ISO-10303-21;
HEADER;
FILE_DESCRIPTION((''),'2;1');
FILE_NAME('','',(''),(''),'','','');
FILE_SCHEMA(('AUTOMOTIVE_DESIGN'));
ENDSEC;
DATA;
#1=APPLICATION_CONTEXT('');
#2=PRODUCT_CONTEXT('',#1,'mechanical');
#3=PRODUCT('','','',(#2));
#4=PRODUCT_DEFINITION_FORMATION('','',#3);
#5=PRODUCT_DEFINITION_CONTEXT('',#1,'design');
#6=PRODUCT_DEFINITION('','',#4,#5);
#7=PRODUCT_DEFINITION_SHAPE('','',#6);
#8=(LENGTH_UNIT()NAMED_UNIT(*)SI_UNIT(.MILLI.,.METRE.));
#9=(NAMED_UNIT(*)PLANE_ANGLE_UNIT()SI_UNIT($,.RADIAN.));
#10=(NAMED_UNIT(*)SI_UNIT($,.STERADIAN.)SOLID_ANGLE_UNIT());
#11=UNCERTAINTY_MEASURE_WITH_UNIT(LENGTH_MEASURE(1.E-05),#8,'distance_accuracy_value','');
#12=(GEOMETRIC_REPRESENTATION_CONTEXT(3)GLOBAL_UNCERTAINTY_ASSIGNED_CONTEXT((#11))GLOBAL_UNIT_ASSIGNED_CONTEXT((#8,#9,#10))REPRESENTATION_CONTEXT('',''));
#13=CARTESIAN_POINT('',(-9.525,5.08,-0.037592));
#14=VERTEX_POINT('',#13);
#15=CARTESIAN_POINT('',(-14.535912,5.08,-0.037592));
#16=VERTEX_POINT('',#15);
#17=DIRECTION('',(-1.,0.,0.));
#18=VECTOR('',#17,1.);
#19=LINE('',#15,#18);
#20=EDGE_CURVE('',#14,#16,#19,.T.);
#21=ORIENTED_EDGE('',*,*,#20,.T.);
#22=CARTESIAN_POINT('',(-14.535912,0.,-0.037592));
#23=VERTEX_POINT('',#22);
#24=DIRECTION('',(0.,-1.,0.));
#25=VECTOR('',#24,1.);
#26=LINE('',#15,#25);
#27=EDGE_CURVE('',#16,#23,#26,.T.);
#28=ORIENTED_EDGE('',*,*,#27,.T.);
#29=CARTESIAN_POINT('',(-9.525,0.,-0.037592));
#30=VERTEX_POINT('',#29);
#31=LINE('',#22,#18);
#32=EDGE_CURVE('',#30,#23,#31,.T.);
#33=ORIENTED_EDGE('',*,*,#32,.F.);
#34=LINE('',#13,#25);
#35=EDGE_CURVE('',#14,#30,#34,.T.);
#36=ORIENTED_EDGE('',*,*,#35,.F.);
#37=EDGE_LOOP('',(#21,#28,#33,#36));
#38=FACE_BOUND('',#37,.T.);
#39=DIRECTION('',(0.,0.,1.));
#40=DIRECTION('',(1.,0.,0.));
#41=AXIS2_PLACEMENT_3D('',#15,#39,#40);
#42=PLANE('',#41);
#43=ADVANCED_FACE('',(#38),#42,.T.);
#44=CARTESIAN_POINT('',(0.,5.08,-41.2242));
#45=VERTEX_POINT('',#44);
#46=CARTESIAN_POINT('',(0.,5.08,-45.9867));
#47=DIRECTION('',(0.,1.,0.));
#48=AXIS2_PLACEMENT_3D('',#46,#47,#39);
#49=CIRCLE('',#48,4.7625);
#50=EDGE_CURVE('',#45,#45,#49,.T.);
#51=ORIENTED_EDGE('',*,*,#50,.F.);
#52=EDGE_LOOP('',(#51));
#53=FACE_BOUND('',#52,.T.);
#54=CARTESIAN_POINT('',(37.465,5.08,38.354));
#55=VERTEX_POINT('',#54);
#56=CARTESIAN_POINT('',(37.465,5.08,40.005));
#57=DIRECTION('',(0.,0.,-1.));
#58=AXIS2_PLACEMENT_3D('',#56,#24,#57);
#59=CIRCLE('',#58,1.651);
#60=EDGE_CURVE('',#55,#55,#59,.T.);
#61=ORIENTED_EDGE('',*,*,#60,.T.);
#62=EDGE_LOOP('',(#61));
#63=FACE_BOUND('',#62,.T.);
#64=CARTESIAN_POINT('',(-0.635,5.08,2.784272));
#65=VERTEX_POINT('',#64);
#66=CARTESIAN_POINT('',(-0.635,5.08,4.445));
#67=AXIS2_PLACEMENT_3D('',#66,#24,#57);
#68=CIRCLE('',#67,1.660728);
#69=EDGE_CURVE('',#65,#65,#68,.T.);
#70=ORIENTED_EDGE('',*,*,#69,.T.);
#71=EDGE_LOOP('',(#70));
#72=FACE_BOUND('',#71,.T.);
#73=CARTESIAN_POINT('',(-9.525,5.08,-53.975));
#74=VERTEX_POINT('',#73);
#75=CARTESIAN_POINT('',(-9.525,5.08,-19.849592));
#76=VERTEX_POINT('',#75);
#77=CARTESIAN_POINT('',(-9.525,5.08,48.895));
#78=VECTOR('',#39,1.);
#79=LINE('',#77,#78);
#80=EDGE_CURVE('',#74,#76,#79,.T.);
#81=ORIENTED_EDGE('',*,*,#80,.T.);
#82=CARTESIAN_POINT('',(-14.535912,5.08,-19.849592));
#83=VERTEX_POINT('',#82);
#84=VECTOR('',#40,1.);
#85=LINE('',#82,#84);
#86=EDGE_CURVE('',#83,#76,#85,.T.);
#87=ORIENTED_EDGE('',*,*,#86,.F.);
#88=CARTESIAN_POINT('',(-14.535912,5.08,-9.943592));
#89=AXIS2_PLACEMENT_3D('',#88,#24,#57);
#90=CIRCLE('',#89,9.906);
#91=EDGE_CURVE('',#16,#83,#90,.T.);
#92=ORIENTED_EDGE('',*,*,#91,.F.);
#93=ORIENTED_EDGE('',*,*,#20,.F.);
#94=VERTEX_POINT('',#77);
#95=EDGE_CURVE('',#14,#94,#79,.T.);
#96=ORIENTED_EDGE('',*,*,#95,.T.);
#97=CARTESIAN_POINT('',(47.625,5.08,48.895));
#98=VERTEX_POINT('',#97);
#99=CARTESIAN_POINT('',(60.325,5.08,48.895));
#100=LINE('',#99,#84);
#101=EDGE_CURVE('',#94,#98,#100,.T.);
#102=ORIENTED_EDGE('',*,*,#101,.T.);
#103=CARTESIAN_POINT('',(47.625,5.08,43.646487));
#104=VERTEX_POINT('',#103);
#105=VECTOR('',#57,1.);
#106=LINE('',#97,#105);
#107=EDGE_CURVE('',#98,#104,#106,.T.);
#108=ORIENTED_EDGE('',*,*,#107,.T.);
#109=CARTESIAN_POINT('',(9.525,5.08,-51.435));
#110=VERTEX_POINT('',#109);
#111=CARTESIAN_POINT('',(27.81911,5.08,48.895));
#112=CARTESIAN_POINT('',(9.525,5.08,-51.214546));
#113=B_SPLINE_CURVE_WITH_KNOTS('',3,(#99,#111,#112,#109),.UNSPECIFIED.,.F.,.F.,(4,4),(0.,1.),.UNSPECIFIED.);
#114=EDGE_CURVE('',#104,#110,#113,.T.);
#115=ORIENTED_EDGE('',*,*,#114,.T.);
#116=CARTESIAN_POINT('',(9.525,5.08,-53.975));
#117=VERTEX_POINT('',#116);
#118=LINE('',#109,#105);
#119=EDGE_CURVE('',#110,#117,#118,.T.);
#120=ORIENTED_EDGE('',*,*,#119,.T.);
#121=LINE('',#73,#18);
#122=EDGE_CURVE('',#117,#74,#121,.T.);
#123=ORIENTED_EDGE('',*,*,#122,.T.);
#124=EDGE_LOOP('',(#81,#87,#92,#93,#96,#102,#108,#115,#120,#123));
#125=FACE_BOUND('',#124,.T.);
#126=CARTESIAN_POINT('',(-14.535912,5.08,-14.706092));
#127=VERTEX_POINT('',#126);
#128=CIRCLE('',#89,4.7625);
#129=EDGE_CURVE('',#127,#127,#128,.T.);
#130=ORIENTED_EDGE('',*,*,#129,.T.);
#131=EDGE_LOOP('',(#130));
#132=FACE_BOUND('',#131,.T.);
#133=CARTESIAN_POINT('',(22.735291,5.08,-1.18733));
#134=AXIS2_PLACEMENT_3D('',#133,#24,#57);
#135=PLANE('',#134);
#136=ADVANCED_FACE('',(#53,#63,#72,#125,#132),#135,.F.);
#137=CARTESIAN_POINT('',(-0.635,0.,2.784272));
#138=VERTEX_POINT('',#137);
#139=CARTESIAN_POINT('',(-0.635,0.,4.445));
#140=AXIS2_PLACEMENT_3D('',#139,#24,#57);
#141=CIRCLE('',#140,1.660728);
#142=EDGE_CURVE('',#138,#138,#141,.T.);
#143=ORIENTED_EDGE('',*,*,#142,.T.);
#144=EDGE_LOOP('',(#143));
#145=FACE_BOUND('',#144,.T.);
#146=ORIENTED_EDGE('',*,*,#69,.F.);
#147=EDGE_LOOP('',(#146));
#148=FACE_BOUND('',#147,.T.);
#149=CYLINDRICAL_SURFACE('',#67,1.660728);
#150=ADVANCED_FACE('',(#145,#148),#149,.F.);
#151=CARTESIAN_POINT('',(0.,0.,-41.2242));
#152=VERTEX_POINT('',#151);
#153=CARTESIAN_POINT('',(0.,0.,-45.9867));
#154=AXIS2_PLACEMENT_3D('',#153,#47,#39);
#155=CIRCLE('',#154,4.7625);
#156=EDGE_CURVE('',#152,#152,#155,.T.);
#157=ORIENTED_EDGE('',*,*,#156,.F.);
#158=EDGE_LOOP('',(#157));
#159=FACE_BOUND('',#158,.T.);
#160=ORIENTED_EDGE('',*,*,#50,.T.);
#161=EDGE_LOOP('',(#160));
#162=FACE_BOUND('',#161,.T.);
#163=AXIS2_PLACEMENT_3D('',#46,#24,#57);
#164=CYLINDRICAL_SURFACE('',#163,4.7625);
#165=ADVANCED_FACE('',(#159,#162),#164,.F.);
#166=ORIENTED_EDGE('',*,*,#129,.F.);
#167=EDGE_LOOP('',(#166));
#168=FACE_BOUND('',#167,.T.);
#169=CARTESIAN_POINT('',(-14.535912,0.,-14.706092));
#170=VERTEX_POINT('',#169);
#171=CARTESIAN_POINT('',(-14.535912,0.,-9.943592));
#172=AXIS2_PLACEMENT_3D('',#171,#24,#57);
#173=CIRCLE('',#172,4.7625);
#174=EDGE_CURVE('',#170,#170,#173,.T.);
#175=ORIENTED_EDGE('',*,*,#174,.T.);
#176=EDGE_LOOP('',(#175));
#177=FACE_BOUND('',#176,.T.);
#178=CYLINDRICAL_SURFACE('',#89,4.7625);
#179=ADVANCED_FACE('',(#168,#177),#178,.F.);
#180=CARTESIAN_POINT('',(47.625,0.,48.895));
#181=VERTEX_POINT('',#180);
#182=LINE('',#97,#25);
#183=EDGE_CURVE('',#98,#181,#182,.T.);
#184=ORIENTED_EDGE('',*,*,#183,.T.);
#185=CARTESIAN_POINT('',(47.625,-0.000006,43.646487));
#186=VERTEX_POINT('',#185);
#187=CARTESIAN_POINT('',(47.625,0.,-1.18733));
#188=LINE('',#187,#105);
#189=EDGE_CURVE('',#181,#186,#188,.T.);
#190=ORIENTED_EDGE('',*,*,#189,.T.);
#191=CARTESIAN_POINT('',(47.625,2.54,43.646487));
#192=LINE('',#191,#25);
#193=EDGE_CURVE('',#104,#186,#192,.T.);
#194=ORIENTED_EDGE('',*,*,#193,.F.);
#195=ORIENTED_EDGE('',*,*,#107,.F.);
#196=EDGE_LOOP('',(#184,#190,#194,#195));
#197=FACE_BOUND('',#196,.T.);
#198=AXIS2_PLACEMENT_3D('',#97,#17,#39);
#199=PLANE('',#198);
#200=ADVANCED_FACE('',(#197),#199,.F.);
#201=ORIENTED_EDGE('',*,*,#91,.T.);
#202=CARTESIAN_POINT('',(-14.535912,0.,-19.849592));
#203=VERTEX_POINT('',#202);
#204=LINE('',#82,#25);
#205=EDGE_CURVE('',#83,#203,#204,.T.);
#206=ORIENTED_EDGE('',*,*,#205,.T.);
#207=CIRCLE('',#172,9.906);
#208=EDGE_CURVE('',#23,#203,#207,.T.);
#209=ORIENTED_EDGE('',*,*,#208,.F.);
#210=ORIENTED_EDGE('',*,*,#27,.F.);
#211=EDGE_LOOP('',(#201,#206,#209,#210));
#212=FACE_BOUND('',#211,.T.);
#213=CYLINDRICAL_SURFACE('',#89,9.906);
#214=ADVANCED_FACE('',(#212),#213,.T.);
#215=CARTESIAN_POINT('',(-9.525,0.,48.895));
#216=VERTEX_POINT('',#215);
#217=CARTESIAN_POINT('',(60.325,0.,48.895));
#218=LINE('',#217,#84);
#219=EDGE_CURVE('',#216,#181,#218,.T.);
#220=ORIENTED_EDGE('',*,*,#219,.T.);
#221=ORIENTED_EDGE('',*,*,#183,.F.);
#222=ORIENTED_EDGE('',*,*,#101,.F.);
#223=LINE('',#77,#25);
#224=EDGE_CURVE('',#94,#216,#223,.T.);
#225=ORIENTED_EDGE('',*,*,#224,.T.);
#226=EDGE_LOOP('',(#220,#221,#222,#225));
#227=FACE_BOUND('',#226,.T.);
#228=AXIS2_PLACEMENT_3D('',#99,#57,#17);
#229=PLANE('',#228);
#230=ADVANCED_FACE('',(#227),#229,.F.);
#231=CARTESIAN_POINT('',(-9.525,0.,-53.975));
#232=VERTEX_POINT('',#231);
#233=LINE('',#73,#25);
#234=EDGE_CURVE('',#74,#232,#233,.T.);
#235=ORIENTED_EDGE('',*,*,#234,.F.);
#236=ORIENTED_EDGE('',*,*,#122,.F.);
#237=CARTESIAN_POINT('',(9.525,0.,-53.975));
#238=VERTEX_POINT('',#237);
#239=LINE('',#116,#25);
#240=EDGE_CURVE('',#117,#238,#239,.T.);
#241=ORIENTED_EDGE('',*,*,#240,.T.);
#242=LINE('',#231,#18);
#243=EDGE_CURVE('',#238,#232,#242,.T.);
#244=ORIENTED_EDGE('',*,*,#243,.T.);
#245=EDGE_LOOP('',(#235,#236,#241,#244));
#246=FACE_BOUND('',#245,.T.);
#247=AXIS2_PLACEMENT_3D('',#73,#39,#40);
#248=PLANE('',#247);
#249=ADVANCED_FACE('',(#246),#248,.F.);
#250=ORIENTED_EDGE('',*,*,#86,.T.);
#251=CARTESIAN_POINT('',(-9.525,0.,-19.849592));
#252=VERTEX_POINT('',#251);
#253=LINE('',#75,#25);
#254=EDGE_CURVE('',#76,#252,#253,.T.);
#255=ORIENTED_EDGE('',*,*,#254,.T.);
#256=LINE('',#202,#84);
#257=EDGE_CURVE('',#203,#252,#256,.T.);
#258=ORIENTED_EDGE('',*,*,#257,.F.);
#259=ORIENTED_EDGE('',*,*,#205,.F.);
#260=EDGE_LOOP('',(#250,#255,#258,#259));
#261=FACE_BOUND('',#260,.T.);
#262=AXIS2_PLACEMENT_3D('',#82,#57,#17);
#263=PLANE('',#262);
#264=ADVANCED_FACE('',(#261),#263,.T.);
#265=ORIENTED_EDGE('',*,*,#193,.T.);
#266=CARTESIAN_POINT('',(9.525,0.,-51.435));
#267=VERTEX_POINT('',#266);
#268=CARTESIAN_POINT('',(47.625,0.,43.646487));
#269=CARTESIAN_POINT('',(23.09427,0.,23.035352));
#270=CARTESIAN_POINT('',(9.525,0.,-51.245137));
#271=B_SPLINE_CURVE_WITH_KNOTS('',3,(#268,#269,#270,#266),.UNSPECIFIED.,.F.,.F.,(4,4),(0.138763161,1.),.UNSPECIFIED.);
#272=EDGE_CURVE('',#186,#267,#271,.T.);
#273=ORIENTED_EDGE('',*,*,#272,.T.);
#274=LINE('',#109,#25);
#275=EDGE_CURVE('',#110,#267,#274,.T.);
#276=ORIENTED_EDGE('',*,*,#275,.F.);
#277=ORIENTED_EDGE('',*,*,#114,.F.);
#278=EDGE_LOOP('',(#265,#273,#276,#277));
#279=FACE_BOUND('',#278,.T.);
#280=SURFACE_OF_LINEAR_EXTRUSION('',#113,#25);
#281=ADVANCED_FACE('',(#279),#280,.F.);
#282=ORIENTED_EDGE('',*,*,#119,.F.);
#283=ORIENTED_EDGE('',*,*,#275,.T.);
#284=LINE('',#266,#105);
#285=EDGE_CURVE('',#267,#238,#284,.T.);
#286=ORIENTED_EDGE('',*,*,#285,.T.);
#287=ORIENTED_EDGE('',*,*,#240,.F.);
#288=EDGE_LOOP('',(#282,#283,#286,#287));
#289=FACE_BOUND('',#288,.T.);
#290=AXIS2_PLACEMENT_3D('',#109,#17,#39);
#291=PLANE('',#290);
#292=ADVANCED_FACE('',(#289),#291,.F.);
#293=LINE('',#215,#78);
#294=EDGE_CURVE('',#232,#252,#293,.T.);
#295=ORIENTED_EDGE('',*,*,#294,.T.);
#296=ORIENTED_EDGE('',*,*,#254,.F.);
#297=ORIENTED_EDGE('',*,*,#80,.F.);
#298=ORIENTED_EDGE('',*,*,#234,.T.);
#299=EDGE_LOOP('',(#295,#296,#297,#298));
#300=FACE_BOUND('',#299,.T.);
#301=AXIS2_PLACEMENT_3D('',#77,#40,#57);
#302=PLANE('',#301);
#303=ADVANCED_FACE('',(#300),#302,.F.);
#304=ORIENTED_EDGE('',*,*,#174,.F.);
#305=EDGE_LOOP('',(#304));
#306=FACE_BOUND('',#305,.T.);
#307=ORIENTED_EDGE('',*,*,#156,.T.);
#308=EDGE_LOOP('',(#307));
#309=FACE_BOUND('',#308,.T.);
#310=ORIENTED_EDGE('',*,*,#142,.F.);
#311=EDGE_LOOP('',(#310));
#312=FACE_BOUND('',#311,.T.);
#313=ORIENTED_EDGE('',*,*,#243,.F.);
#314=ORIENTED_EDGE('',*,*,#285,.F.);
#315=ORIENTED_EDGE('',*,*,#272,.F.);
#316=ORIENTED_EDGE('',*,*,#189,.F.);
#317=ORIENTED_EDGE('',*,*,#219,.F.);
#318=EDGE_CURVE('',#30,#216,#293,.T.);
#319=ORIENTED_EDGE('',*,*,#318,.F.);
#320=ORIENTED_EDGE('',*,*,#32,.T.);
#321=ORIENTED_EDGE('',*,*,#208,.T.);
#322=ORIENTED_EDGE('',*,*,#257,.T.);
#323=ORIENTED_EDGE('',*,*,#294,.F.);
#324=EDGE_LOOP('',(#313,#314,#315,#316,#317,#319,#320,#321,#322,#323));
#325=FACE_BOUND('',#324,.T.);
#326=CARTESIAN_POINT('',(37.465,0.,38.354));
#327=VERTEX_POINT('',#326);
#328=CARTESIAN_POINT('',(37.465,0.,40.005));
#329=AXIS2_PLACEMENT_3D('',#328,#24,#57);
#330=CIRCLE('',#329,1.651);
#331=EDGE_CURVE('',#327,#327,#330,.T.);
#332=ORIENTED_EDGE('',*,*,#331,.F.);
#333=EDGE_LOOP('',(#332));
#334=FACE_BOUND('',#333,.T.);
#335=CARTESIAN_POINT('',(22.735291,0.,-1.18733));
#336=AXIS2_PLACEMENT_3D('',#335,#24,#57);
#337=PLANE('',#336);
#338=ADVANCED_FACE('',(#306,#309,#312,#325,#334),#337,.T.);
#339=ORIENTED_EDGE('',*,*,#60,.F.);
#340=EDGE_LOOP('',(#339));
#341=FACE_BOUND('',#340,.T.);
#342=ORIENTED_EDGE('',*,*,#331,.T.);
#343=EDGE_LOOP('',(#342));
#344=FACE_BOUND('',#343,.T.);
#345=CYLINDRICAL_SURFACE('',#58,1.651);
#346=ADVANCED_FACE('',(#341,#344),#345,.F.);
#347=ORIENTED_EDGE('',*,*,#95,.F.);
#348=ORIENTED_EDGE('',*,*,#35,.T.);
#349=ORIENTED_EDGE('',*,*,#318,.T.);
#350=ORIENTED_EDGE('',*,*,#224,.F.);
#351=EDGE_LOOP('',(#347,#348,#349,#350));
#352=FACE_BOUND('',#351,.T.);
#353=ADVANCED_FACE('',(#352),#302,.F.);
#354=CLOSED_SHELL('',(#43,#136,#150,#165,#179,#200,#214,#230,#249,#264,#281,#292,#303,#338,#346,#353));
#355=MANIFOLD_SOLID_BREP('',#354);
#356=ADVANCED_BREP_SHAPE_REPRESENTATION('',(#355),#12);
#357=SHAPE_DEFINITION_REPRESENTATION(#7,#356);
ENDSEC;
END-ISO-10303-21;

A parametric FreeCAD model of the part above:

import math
import FreeCAD as App
import Part
import Sketcher
Q = App.Units.Quantity

doc = App.newDocument("Part")
body = doc.addObject("PartDesign::Body", "Body")

sketch1 = doc.addObject("Sketcher::SketchObject", "Sketch")
body.addObject(sketch1)
sketch1.AttachmentSupport = (doc.XZ_Plane, [""])
sketch1.MapMode = "FlatFace"
sketch1.addGeometry(Part.LineSegment(App.Vector(9.525, -53.975, 0), App.Vector(-9.525, -53.975, 0)), False)
sketch1.addGeometry(Part.LineSegment(App.Vector(-9.525, -53.975, 0), App.Vector(-9.525, 48.895, 0)), False)
sketch1.addGeometry(Part.LineSegment(App.Vector(-9.525, 48.895, 0), App.Vector(60.325, 48.895, 0)), False)
sketch1.addGeometry(Part.BSplineCurve([App.Vector(9.525, -51.435, 0), App.Vector(9.525, -51.214546, 0), App.Vector(27.81911, 48.895, 0), App.Vector(60.325, 48.895, 0)], [4, 4], [0, 1], False, 3, [1, 1, 1, 1], False), False)
sketch1.addGeometry(Part.LineSegment(App.Vector(9.525, -51.435, 0), App.Vector(9.525, -53.975, 0)), False)
sketch1.addGeometry(Part.Circle(App.Vector(0, -45.9867, 0), App.Vector(0, 0, 1), 4.7625), False)
sketch1.addConstraint(Sketcher.Constraint("Block", 3))
sketch1.addConstraint(Sketcher.Constraint("Coincident", 0, 2, 1, 1))
sketch1.addConstraint(Sketcher.Constraint("Coincident", 1, 2, 2, 1))
sketch1.addConstraint(Sketcher.Constraint("Coincident", 2, 2, 3, 2))
sketch1.addConstraint(Sketcher.Constraint("Coincident", 3, 1, 4, 1))
sketch1.addConstraint(Sketcher.Constraint("Coincident", 4, 2, 0, 1))
sketch1.addConstraint(Sketcher.Constraint("Horizontal", 0))
sketch1.addConstraint(Sketcher.Constraint("Vertical", 1))
sketch1.addConstraint(Sketcher.Constraint("Horizontal", 2))
sketch1.addConstraint(Sketcher.Constraint("Vertical", 4))
sketch1.addConstraint(Sketcher.Constraint("PointOnObject", 5, 3, -2))
sketch1.addConstraint(Sketcher.Constraint("Diameter", 5, Q("0.375 in")))
sketch1.addConstraint(Sketcher.Constraint("DistanceY", 4, 2, 4, 1, Q("0.1 in")))
sketch1.addConstraint(Sketcher.Constraint("DistanceX", 0, 2, 0, 1, Q("0.75 in")))
sketch1.addConstraint(Sketcher.Constraint("DistanceY", 5, 3, -1, 1, Q("1.8105 in")))
pad1 = doc.addObject("PartDesign::Pad", "Pad")
body.addObject(pad1)
pad1.Profile = sketch1
pad1.Length = Q("0.2 in")
pad1.Reversed = True

sketch2 = doc.addObject("Sketcher::SketchObject", "Sketch001")
body.addObject(sketch2)
sketch2.AttachmentSupport = (doc.XZ_Plane, [""])
sketch2.MapMode = "FlatFace"
sketch2.AttachmentOffset = App.Placement(App.Vector(0, 0, -0.2 * 25.4), App.Rotation())
sketch2.addGeometry(Part.LineSegment(App.Vector(41.275, 48.895, 0), App.Vector(41.275, 53.975, 0)), False)
sketch2.addGeometry(Part.LineSegment(App.Vector(41.275, 53.975, 0), App.Vector(60.325, 53.975, 0)), False)
sketch2.addGeometry(Part.LineSegment(App.Vector(60.325, 53.975, 0), App.Vector(60.325, 48.895, 0)), False)
sketch2.addGeometry(Part.LineSegment(App.Vector(60.325, 48.895, 0), App.Vector(41.275, 48.895, 0)), False)
sketch2.addConstraint(Sketcher.Constraint("Coincident", 0, 2, 1, 1))
sketch2.addConstraint(Sketcher.Constraint("Coincident", 1, 2, 2, 1))
sketch2.addConstraint(Sketcher.Constraint("Coincident", 2, 2, 3, 1))
sketch2.addConstraint(Sketcher.Constraint("Coincident", 3, 2, 0, 1))
sketch2.addConstraint(Sketcher.Constraint("Vertical", 0))
sketch2.addConstraint(Sketcher.Constraint("Horizontal", 1))
sketch2.addConstraint(Sketcher.Constraint("Vertical", 2))
sketch2.addConstraint(Sketcher.Constraint("Horizontal", 3))
sketch2.addConstraint(Sketcher.Constraint("DistanceY", 0, 1, 0, 2, Q("0.2 in")))
sketch2.addConstraint(Sketcher.Constraint("DistanceX", 1, 1, 1, 2, Q("0.75 in")))
sketch2.addConstraint(Sketcher.Constraint("DistanceX", -1, 1, 0, 2, Q("1.625 in")))
sketch2.addConstraint(Sketcher.Constraint("DistanceY", -1, 1, 0, 2, Q("2.125 in")))
pad2 = doc.addObject("PartDesign::Pad", "Pad001")
body.addObject(pad2)
pad2.Profile = sketch2
pad2.Length = Q("0.2 in")

sketch3 = doc.addObject("Sketcher::SketchObject", "Sketch002")
body.addObject(sketch3)
sketch3.AttachmentSupport = (doc.XZ_Plane, [""])
sketch3.MapMode = "FlatFace"
sketch3.addGeometry(Part.Circle(App.Vector(-0.635, 4.445, 0), App.Vector(0, 0, 1), 1.660728), False)
sketch3.addGeometry(Part.Circle(App.Vector(37.465, 40.005, 0), App.Vector(0, 0, 1), 1.651), False)
sketch3.addConstraint(Sketcher.Constraint("Diameter", 1, Q("0.13 in")))
sketch3.addConstraint(Sketcher.Constraint("DistanceX", 0, 3, 1, 3, Q("1.5 in")))
sketch3.addConstraint(Sketcher.Constraint("DistanceY", 0, 3, 1, 3, Q("1.4 in")))
sketch3.addConstraint(Sketcher.Constraint("DistanceX", 0, 3, -1, 1, Q("0.025 in")))
sketch3.addConstraint(Sketcher.Constraint("DistanceY", -1, 1, 0, 3, Q("0.175 in")))
sketch3.addConstraint(Sketcher.Constraint("Diameter", 0, Q("3.321457 mm")))
pocket1 = doc.addObject("PartDesign::Pocket", "Pocket")
body.addObject(pocket1)
pocket1.Profile = sketch3
pocket1.Type = "ThroughAll"
pocket1.Midplane = True

sketch4 = doc.addObject("Sketcher::SketchObject", "Sketch003")
body.addObject(sketch4)
sketch4.AttachmentSupport = (doc.XZ_Plane, [""])
sketch4.MapMode = "FlatFace"
sketch4.addGeometry(Part.LineSegment(App.Vector(-9.525, -0.037592, 0), App.Vector(-14.535912, -0.037592, 0)), False)
sketch4.addGeometry(Part.ArcOfCircle(Part.Circle(App.Vector(-14.535912, -9.943592, 0), App.Vector(0, 0, 1), 9.906), math.radians(90), math.radians(270)), False)
sketch4.addGeometry(Part.LineSegment(App.Vector(-14.535912, -19.849592, 0), App.Vector(-9.525, -19.849592, 0)), False)
sketch4.addGeometry(Part.LineSegment(App.Vector(-9.525, -19.849592, 0), App.Vector(-9.525, -18.488742, 0)), False)
sketch4.addGeometry(Part.ArcOfCircle(Part.Circle(App.Vector(-14.535912, -9.943592, 0), App.Vector(0, 0, 1), 9.906), math.radians(-59.612462), math.radians(59.612462)), False)
sketch4.addGeometry(Part.LineSegment(App.Vector(-9.525, -1.398442, 0), App.Vector(-9.525, -0.037592, 0)), False)
sketch4.addGeometry(Part.Circle(App.Vector(-14.535912, -9.943592, 0), App.Vector(0, 0, 1), 4.7625), False)
sketch4.addConstraint(Sketcher.Constraint("Tangent", 0, 2, 1, 1))
sketch4.addConstraint(Sketcher.Constraint("Tangent", 1, 2, 2, 1))
sketch4.addConstraint(Sketcher.Constraint("Coincident", 2, 2, 3, 1))
sketch4.addConstraint(Sketcher.Constraint("Coincident", 3, 2, 4, 1))
sketch4.addConstraint(Sketcher.Constraint("Coincident", 4, 2, 5, 1))
sketch4.addConstraint(Sketcher.Constraint("Coincident", 5, 2, 0, 1))
sketch4.addConstraint(Sketcher.Constraint("Horizontal", 0))
sketch4.addConstraint(Sketcher.Constraint("Horizontal", 2))
sketch4.addConstraint(Sketcher.Constraint("Vertical", 3))
sketch4.addConstraint(Sketcher.Constraint("Vertical", 5))
sketch4.addConstraint(Sketcher.Constraint("Coincident", 4, 3, 1, 3))
sketch4.addConstraint(Sketcher.Constraint("Coincident", 6, 3, 1, 3))
sketch4.addConstraint(Sketcher.Constraint("Equal", 1, 4))
sketch4.addConstraint(Sketcher.Constraint("Vertical", 3, 2, 4, 2))
sketch4.addConstraint(Sketcher.Constraint("Radius", 1, Q("0.39 in")))
sketch4.addConstraint(Sketcher.Constraint("Diameter", 6, Q("0.375 in")))
sketch4.addConstraint(Sketcher.Constraint("DistanceX", 2, 2, -1, 1, Q("0.375 in")))
sketch4.addConstraint(Sketcher.Constraint("DistanceX", 0, 2, 0, 1, Q("5.010912 mm")))
sketch4.addConstraint(Sketcher.Constraint("DistanceY", 4, 2, -1, 1, Q("1.398442 mm")))
pad3 = doc.addObject("PartDesign::Pad", "Pad002")
body.addObject(pad3)
pad3.Profile = sketch4
pad3.Length = Q("0.2 in")
pad3.Reversed = True

sketch5 = doc.addObject("Sketcher::SketchObject", "Sketch004")
body.addObject(sketch5)
sketch5.AttachmentSupport = (doc.XZ_Plane, [""])
sketch5.MapMode = "FlatFace"
sketch5.addGeometry(Part.LineSegment(App.Vector(60.325, 48.895, 0), App.Vector(60.325, 53.975, 0)), False)
sketch5.addGeometry(Part.LineSegment(App.Vector(60.325, 53.975, 0), App.Vector(41.275, 53.975, 0)), False)
sketch5.addGeometry(Part.LineSegment(App.Vector(41.275, 53.975, 0), App.Vector(41.275, 48.895, 0)), False)
sketch5.addGeometry(Part.LineSegment(App.Vector(41.275, 48.895, 0), App.Vector(47.625, 48.895, 0)), False)
sketch5.addGeometry(Part.LineSegment(App.Vector(47.625, 48.895, 0), App.Vector(47.625, 43.646487, 0)), False)
sketch5.addGeometry(Part.BSplineCurve([App.Vector(60.325, 48.895, 0), App.Vector(55.81438, 48.895, 0), App.Vector(51.577411, 46.967369, 0), App.Vector(47.625, 43.646487, 0)], [4, 4], [0, 0.138763161], False, 3, [1, 1, 1, 1], False), False)
sketch5.addConstraint(Sketcher.Constraint("Block", 5))
sketch5.addConstraint(Sketcher.Constraint("Coincident", 0, 2, 1, 1))
sketch5.addConstraint(Sketcher.Constraint("Coincident", 1, 2, 2, 1))
sketch5.addConstraint(Sketcher.Constraint("Coincident", 2, 2, 3, 1))
sketch5.addConstraint(Sketcher.Constraint("Coincident", 3, 2, 4, 1))
sketch5.addConstraint(Sketcher.Constraint("Coincident", 4, 2, 5, 2))
sketch5.addConstraint(Sketcher.Constraint("Coincident", 5, 1, 0, 1))
sketch5.addConstraint(Sketcher.Constraint("Vertical", 0))
sketch5.addConstraint(Sketcher.Constraint("Horizontal", 1))
sketch5.addConstraint(Sketcher.Constraint("Vertical", 2))
sketch5.addConstraint(Sketcher.Constraint("Horizontal", 3))
sketch5.addConstraint(Sketcher.Constraint("Vertical", 4))
sketch5.addConstraint(Sketcher.Constraint("Equal", 0, 2))
sketch5.addConstraint(Sketcher.Constraint("DistanceY", 0, 1, 0, 2, Q("0.2 in")))
sketch5.addConstraint(Sketcher.Constraint("DistanceX", 1, 2, 1, 1, Q("0.75 in")))
pocket2 = doc.addObject("PartDesign::Pocket", "Pocket001")
body.addObject(pocket2)
pocket2.Profile = sketch5
pocket2.Type = "ThroughAll"
pocket2.Midplane = True

doc.recompute()
